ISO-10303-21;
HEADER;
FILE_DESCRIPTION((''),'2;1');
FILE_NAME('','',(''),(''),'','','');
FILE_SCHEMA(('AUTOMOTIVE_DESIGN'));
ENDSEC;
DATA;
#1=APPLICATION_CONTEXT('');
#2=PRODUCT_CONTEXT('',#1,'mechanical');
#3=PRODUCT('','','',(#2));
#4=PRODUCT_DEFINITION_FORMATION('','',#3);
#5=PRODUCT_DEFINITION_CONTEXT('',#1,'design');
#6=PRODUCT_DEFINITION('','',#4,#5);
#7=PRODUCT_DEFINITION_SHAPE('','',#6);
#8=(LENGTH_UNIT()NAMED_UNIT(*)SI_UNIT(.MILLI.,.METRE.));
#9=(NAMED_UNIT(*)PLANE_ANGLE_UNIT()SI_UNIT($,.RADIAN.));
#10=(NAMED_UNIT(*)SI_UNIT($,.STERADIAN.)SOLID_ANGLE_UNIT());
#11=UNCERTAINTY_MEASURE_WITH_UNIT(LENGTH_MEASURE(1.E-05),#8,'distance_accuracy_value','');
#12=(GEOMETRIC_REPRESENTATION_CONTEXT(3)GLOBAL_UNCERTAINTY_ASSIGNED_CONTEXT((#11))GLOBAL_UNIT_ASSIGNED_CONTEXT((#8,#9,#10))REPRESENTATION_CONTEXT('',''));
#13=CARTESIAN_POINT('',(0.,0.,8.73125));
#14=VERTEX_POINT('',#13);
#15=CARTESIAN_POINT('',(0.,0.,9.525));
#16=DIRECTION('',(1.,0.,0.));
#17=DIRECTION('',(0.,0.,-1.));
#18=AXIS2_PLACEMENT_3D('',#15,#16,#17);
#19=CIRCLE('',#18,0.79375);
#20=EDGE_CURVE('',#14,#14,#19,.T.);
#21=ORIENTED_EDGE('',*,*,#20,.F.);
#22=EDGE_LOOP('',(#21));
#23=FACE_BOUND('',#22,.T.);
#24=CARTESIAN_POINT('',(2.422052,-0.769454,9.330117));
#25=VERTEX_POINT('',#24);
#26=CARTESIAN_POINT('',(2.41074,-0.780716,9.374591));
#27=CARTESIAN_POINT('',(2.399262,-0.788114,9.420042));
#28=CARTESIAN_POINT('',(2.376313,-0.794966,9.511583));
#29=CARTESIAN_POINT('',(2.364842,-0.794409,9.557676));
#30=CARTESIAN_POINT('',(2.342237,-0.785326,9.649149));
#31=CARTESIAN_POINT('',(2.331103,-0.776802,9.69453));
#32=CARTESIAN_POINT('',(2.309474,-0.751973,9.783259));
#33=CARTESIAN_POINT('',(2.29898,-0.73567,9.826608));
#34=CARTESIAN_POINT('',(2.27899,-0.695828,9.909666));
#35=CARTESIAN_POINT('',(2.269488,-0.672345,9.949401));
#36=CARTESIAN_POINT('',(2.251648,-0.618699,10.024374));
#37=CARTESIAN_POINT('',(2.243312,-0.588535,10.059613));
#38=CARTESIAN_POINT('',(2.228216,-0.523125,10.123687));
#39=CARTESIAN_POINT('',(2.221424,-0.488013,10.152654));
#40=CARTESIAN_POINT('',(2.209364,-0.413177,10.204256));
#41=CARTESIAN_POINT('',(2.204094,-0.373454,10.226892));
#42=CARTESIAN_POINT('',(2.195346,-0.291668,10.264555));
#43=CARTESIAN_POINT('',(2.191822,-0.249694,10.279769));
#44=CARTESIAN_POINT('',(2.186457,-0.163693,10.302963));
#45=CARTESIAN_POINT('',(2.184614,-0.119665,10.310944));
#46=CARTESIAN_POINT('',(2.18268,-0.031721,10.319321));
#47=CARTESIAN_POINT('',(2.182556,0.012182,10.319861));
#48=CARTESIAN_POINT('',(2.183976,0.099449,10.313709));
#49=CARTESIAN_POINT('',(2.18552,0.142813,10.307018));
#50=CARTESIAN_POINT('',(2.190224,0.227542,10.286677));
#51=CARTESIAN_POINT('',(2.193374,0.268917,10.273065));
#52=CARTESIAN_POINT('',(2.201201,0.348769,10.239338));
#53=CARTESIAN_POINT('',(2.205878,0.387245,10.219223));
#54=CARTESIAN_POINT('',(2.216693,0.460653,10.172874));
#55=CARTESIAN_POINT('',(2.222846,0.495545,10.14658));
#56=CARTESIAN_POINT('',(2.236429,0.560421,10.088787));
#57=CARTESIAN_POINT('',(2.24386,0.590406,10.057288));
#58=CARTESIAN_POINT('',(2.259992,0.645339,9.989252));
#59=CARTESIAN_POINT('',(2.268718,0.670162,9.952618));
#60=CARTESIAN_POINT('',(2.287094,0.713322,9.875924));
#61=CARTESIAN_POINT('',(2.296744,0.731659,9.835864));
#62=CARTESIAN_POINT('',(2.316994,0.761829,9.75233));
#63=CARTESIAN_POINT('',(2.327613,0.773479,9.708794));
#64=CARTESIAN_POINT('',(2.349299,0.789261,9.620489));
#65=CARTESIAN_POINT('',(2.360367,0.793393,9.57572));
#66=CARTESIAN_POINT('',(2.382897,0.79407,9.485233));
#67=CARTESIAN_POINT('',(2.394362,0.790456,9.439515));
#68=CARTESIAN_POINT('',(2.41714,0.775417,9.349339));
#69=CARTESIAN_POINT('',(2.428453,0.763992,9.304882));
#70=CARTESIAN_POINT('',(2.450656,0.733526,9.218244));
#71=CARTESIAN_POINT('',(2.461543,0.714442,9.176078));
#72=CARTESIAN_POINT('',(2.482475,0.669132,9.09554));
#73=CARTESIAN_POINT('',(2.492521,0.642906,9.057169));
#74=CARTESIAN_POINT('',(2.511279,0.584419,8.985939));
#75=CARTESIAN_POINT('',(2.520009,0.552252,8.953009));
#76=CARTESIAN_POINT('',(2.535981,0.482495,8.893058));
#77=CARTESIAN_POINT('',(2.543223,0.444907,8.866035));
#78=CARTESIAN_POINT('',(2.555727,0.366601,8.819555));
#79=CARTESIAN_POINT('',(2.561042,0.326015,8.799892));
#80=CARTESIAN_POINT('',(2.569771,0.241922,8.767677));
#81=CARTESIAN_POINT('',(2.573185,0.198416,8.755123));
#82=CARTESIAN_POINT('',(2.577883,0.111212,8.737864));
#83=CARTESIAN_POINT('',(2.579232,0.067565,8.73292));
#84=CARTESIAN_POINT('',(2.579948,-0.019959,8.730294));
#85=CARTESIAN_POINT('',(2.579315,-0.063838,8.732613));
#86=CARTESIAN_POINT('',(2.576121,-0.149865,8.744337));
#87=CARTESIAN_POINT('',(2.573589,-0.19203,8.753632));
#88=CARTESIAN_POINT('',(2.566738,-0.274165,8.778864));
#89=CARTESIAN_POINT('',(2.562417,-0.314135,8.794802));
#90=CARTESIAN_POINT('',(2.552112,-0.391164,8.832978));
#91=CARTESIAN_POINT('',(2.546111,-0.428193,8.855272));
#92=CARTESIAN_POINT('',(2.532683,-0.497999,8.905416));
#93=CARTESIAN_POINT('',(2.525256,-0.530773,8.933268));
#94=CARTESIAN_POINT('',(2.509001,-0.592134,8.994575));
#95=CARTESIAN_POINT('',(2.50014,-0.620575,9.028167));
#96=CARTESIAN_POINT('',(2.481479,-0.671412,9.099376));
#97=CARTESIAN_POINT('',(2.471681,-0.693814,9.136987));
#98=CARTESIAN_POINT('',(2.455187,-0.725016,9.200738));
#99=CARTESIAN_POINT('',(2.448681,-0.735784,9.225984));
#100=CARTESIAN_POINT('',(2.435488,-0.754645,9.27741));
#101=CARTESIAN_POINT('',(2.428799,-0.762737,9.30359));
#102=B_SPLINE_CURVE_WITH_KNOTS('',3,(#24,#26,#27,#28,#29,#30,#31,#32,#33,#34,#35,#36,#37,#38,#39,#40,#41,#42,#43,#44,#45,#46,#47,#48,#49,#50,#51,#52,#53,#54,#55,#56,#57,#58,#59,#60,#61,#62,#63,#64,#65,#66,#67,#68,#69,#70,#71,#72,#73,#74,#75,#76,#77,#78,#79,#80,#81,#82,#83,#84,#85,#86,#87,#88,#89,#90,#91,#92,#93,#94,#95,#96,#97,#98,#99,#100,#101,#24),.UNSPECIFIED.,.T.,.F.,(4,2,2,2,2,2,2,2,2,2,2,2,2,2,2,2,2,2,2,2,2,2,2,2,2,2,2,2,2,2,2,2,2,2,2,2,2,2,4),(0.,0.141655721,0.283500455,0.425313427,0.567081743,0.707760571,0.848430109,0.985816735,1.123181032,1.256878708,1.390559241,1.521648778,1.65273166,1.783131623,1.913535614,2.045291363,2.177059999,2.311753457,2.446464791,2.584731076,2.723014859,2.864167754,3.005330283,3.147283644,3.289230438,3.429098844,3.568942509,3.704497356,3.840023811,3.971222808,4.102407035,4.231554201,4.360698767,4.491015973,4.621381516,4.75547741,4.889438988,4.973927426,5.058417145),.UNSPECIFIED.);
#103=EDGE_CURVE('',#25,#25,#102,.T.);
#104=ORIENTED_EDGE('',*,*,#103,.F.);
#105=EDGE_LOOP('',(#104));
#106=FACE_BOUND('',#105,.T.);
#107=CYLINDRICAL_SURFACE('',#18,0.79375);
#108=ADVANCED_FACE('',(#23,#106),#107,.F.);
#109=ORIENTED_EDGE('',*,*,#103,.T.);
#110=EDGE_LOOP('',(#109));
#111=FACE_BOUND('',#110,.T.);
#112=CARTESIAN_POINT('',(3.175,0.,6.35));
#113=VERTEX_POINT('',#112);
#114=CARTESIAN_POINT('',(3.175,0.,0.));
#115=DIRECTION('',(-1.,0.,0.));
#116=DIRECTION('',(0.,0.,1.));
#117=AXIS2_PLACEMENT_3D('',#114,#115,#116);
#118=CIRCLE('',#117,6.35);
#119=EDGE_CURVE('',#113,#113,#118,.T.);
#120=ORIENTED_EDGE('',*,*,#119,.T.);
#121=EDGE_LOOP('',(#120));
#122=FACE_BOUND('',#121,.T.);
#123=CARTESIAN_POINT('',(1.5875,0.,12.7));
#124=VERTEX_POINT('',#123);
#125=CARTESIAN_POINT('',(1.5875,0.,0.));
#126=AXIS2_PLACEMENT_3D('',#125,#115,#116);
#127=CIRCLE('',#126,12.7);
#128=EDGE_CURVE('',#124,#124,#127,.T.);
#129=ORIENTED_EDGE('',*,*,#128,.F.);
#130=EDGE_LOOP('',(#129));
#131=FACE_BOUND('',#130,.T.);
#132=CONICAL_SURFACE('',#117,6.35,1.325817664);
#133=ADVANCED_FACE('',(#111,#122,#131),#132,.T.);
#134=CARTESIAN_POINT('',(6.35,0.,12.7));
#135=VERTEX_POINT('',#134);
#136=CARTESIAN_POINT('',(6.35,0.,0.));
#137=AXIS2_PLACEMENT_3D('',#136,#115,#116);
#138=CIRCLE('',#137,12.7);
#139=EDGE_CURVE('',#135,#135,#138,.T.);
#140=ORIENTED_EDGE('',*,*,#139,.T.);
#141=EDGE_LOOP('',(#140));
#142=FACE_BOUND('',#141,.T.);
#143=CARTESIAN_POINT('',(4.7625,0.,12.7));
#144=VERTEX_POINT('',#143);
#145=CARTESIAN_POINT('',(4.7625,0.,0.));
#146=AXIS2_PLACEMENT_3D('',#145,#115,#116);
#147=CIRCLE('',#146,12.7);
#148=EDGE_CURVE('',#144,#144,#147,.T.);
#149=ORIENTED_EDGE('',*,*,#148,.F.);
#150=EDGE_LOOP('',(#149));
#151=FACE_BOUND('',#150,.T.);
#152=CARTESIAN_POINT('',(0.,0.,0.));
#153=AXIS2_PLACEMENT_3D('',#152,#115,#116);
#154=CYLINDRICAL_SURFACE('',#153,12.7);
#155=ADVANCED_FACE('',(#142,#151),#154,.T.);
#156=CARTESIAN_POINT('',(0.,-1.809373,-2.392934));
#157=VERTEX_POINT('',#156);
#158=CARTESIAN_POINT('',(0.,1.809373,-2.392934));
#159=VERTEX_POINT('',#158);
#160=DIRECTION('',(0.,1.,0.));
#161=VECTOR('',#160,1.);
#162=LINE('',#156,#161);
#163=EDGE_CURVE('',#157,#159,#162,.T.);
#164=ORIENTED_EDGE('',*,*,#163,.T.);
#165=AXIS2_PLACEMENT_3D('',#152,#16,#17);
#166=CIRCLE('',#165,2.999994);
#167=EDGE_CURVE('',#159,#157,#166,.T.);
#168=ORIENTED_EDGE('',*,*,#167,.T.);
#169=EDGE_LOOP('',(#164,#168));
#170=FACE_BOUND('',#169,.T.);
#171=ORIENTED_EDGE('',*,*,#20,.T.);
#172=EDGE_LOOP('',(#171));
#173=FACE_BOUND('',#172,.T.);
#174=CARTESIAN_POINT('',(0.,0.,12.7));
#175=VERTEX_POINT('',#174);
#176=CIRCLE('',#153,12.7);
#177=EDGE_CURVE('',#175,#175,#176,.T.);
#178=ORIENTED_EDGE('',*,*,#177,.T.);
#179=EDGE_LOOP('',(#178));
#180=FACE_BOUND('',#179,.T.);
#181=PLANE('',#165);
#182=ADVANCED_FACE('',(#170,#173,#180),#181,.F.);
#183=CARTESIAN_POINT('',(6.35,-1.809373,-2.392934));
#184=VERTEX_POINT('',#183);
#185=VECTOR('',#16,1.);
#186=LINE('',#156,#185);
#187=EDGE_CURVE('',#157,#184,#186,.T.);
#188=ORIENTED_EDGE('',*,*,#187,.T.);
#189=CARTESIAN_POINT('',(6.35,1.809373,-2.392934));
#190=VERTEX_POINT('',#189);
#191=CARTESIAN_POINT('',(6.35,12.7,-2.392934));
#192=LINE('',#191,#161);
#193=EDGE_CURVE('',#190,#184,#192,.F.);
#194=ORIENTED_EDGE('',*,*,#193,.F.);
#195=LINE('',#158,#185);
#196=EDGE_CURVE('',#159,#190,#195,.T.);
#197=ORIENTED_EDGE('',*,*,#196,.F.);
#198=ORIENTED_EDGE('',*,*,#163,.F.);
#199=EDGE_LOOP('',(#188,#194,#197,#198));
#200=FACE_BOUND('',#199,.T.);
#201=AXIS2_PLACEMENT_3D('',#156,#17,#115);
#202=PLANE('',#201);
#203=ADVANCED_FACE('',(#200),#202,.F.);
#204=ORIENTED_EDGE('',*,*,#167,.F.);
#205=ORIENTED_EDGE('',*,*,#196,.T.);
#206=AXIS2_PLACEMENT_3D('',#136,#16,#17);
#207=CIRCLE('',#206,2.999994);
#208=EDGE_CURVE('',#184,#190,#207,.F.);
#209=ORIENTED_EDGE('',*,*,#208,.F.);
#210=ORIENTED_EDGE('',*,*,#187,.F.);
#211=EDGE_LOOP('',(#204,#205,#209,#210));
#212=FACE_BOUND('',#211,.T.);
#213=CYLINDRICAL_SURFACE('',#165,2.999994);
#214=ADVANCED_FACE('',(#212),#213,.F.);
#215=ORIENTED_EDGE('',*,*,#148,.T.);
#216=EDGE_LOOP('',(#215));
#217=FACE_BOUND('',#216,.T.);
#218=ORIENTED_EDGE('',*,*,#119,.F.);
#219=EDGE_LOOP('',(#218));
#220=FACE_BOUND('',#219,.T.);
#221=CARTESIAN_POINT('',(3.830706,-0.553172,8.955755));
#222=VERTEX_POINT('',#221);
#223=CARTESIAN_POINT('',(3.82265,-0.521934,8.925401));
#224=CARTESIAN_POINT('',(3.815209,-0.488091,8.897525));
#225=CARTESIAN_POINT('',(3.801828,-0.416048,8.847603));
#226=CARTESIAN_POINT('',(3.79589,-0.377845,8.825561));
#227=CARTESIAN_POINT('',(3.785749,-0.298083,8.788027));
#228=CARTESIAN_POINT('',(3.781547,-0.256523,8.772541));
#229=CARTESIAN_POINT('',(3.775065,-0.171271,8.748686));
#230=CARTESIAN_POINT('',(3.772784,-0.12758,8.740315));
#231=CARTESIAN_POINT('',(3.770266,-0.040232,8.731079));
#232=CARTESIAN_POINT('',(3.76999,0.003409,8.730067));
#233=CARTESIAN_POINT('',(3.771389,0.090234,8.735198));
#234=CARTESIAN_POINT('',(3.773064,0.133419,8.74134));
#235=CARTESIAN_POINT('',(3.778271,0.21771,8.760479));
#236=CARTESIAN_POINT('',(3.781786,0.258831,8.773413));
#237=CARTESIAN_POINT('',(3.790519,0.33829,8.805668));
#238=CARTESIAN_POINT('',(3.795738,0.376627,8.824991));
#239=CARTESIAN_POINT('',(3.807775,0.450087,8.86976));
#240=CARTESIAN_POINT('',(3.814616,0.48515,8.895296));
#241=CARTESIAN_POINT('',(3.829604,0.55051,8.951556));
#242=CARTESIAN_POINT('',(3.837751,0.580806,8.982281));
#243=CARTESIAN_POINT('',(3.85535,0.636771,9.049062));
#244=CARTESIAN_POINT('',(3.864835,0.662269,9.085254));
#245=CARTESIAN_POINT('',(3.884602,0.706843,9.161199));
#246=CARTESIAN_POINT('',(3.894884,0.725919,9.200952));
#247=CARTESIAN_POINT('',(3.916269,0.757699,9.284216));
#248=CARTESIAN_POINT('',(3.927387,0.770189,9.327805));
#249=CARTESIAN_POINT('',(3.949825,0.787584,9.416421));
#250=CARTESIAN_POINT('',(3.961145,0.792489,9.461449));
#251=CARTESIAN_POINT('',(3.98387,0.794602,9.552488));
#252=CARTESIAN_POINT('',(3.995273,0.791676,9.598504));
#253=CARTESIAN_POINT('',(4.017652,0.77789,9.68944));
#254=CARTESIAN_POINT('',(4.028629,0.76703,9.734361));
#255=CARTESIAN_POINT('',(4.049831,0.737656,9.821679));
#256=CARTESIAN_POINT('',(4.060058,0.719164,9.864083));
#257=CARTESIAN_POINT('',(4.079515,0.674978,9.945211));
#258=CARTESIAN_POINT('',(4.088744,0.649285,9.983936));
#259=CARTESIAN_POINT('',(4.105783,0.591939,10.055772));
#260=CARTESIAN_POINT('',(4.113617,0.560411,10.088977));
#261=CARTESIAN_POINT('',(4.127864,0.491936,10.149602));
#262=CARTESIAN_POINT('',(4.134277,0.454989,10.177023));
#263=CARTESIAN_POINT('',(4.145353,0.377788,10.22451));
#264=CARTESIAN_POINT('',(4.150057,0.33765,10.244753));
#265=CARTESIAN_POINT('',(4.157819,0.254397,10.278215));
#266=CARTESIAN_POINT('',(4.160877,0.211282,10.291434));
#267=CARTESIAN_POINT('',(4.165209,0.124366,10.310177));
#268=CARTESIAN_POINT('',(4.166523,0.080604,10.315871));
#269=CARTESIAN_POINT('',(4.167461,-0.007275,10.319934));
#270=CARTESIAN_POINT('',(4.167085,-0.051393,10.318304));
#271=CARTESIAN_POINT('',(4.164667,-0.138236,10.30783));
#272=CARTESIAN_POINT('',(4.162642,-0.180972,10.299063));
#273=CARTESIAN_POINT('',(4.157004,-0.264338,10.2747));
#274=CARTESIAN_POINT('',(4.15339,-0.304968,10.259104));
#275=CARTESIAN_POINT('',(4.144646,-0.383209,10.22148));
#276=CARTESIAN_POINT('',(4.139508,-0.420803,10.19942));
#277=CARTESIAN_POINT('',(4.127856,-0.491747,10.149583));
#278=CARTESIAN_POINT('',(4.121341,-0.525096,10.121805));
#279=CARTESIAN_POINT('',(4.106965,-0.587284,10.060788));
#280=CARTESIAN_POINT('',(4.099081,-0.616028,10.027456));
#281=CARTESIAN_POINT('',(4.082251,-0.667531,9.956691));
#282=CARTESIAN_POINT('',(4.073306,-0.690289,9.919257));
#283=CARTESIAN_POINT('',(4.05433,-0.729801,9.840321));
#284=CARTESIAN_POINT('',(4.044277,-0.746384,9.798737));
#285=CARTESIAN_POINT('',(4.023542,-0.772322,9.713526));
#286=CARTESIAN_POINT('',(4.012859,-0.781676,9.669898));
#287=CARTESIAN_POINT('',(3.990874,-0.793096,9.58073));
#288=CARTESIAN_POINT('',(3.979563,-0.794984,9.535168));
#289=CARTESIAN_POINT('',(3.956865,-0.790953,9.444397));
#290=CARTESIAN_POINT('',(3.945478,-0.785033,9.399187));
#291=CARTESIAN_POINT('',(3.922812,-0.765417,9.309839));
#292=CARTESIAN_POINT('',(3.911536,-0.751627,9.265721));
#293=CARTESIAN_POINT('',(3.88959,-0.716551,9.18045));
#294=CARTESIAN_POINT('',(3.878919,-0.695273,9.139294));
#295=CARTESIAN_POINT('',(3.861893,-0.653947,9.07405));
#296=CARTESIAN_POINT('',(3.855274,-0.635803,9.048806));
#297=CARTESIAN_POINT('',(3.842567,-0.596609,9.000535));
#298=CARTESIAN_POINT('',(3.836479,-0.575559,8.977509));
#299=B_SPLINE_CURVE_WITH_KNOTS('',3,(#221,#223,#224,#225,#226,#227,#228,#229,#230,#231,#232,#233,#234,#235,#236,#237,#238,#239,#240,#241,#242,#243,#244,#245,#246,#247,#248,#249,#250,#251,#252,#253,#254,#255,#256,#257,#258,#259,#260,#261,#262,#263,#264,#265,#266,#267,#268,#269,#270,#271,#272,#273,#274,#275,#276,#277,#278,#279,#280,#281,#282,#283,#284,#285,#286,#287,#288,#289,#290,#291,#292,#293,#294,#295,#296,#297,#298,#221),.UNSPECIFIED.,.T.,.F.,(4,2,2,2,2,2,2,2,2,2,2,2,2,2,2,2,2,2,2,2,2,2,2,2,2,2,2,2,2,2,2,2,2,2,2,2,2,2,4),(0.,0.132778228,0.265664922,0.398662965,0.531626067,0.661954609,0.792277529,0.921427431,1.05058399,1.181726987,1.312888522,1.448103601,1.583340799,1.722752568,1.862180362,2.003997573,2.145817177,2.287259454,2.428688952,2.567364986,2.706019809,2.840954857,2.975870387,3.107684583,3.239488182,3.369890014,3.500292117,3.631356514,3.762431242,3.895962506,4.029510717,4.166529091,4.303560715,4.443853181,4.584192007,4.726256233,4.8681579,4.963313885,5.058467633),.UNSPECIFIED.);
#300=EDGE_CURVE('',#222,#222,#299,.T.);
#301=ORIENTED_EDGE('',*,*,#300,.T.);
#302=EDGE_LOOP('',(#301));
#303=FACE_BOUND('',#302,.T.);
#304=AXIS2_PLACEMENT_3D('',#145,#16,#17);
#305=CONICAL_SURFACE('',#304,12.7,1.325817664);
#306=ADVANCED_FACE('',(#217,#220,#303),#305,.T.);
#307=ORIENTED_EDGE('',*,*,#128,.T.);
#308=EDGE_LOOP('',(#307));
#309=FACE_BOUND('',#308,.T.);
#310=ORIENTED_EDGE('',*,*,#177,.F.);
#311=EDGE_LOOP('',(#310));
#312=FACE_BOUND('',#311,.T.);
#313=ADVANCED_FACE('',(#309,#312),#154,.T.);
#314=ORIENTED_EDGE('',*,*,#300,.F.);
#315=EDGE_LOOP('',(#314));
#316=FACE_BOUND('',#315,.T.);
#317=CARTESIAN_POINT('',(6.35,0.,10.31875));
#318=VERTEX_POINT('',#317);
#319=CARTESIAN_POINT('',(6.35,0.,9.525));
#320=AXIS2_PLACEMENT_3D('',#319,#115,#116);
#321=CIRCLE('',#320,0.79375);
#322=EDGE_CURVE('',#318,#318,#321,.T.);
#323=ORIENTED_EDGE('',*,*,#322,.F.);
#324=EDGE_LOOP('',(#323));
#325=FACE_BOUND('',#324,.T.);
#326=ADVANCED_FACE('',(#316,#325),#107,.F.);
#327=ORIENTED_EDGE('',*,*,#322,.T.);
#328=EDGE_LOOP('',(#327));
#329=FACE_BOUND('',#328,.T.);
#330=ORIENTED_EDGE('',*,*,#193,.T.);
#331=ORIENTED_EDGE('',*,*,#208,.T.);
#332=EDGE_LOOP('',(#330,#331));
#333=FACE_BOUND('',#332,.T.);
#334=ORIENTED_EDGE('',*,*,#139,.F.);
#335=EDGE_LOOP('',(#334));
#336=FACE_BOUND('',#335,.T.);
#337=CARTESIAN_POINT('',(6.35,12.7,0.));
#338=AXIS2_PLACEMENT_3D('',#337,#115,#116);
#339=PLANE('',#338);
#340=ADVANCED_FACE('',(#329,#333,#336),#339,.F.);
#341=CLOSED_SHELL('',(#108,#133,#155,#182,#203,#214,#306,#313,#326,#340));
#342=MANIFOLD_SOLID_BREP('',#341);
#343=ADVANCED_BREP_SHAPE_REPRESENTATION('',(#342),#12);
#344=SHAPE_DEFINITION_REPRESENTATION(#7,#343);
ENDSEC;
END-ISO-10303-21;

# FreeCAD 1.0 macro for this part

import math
import FreeCAD as App
import Part
import Sketcher
from FreeCAD import Vector
Q = App.Units.Quantity


def add_polygon(sketch, points):
    """Adds a closed chain of lines whose ends are joined by coincident constraints."""
    first, n = sketch.GeometryCount, len(points)
    for a, b in zip(points, points[1:] + points[:1]):
        sketch.addGeometry(Part.LineSegment(App.Vector(*a, 0), App.Vector(*b, 0)), False)
    for i in range(n):
        sketch.addConstraint(Sketcher.Constraint("Coincident", first + i, 2, first + (i + 1) % n, 1))

doc = App.newDocument("Part")
body = doc.addObject("PartDesign::Body", "Body")

# Sketch on XY plane
sketch1 = body.newObject("Sketcher::SketchObject", "Sketch")
sketch1.AttachmentSupport = (doc.getObject("XY_Plane"), [""])
sketch1.MapMode = "FlatFace"
add_polygon(sketch1, [(0, 12.7), (0, 0), (6.35, 0), (6.35, 12.7), (4.7625, 12.7), (3.175, 6.35), (1.5875, 12.7)])  # lines 0-6
sketch1.addConstraint(Sketcher.Constraint("Vertical", 0))
sketch1.addConstraint(Sketcher.Constraint("Horizontal", 1))
sketch1.addConstraint(Sketcher.Constraint("Vertical", 2))
sketch1.addConstraint(Sketcher.Constraint("Horizontal", 3))
sketch1.addConstraint(Sketcher.Constraint("Horizontal", 6))
sketch1.addConstraint(Sketcher.Constraint("Coincident", 0, 2, -1, 1))
sketch1.addConstraint(Sketcher.Constraint("Horizontal", 3, 2, 5, 2))
sketch1.addConstraint(Sketcher.Constraint("Equal", 3, 6))
sketch1.addConstraint(Sketcher.Constraint("Equal", 4, 5))
sketch1.addConstraint(Sketcher.Constraint("DistanceY", 0, 2, 0, 1, Q("0.5 in")))
sketch1.addConstraint(Sketcher.Constraint("DistanceX", 1, 1, 1, 2, Q("0.25 in")))
sketch1.addConstraint(Sketcher.Constraint("DistanceX", 3, 2, 3, 1, Q("0.0625 in")))
sketch1.addConstraint(Sketcher.Constraint("DistanceY", -1, 1, 4, 2, Q("0.25 in")))
revolution = body.newObject("PartDesign::Revolution", "Revolution")
revolution.Profile = sketch1
revolution.ReferenceAxis = (sketch1, ["H_Axis"])
revolution.Angle = 360

# Sketch on YZ plane
sketch2 = body.newObject("Sketcher::SketchObject", "Sketch001")
sketch2.AttachmentSupport = (doc.getObject("YZ_Plane"), [""])
sketch2.MapMode = "FlatFace"
sketch2.AttachmentOffset = App.Placement(Vector(0, 0, 0.25 * 25.4), App.Rotation())
sketch2.addGeometry(Part.LineSegment(Vector(-1.809373, -2.392934, 0), Vector(1.809373, -2.392934, 0)), False)
sketch2.addGeometry(Part.ArcOfCircle(Part.Circle(Vector(0, 0, 0), Vector(0, 0, 1), 2.999994), math.radians(-52.905921), math.radians(232.905921)), False)
sketch2.addConstraint(Sketcher.Constraint("Coincident", 0, 1, 1, 2))
sketch2.addConstraint(Sketcher.Constraint("Coincident", 1, 1, 0, 2))
sketch2.addConstraint(Sketcher.Constraint("Horizontal", 0))
sketch2.addConstraint(Sketcher.Constraint("Coincident", 1, 3, -1, 1))
sketch2.addConstraint(Sketcher.Constraint("Radius", 1, 2.999994))
sketch2.addConstraint(Sketcher.Constraint("DistanceX", 0, 1, 0, 2, 3.618746))
pocket1 = body.newObject("PartDesign::Pocket", "Pocket")
pocket1.Profile = sketch2
pocket1.Type = "ThroughAll"
pocket1.Midplane = True

# Sketch on YZ plane
sketch3 = body.newObject("Sketcher::SketchObject", "Sketch002")
sketch3.AttachmentSupport = (doc.getObject("YZ_Plane"), [""])
sketch3.MapMode = "FlatFace"
sketch3.AttachmentOffset = App.Placement(Vector(0, 0, 0.25 * 25.4), App.Rotation())
sketch3.addGeometry(Part.Circle(Vector(0, 9.525, 0), Vector(0, 0, 1), 0.79375), False)
sketch3.addConstraint(Sketcher.Constraint("PointOnObject", 0, 3, -2))
sketch3.addConstraint(Sketcher.Constraint("Diameter", 0, Q("0.0625 in")))
sketch3.addConstraint(Sketcher.Constraint("DistanceY", -1, 1, 0, 3, Q("0.375 in")))
pocket2 = body.newObject("PartDesign::Pocket", "Pocket001")
pocket2.Profile = sketch3
pocket2.Type = "ThroughAll"
pocket2.Midplane = True

doc.recompute()
